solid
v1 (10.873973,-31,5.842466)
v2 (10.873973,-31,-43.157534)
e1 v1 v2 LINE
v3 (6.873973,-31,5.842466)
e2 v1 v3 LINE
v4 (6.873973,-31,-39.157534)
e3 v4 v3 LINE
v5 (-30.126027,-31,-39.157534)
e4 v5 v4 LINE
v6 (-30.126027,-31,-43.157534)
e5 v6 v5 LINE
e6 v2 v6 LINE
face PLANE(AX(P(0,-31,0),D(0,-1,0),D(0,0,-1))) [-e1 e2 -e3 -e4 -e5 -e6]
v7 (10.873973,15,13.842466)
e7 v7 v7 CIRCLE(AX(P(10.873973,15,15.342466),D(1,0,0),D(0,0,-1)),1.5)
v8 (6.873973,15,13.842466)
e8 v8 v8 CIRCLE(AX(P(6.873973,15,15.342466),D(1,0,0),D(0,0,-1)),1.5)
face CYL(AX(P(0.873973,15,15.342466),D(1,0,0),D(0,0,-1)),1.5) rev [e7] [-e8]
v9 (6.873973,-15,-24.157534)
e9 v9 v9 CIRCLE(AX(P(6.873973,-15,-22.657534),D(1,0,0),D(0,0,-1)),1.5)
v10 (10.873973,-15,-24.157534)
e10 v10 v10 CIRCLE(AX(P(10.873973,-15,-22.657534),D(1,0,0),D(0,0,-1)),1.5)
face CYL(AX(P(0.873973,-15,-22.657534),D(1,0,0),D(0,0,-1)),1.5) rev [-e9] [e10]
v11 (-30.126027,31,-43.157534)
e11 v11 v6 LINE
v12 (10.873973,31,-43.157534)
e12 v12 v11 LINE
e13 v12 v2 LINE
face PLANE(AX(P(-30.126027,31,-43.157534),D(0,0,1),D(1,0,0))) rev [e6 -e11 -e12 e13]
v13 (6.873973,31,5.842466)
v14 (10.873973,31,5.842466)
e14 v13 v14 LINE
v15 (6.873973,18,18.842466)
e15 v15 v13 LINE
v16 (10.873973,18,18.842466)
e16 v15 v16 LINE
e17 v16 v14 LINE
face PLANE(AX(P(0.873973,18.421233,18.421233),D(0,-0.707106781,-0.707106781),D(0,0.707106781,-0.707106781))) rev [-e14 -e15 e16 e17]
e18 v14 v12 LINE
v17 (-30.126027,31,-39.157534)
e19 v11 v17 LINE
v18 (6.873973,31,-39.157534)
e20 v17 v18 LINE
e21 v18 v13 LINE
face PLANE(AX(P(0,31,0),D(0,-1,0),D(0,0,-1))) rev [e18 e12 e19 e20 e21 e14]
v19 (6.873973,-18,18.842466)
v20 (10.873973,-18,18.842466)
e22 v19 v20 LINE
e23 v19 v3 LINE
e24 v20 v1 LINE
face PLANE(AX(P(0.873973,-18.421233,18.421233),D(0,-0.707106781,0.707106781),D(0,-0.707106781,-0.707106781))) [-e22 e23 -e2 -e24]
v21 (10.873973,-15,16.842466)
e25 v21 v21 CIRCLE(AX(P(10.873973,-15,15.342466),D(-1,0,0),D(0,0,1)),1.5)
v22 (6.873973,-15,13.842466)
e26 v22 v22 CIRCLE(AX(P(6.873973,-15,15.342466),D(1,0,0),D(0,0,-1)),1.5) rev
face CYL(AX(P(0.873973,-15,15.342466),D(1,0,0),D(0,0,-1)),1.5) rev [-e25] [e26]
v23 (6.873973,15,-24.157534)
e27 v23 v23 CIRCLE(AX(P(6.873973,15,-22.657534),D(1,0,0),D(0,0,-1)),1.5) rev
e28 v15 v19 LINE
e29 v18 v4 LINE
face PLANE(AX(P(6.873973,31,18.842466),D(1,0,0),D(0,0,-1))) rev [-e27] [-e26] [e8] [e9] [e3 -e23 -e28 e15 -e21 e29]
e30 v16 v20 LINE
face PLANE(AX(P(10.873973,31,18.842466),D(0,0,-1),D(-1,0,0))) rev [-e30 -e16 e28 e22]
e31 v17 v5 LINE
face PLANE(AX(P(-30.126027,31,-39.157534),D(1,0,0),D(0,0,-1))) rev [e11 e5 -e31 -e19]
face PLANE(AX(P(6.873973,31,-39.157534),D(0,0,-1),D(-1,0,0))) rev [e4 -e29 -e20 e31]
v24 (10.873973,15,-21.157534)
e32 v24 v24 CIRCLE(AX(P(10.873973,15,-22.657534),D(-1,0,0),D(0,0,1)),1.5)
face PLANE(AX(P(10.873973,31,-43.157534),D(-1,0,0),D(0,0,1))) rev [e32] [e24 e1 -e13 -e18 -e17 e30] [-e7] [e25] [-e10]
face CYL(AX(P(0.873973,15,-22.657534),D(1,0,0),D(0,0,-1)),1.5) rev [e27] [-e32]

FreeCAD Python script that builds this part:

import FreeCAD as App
import Part
import Sketcher
Q = App.Units.Quantity

doc = App.newDocument("Part")
body = doc.addObject("PartDesign::Body", "Body")

sketch1 = doc.addObject("Sketcher::SketchObject", "Sketch")
body.addObject(sketch1)
sketch1.AttachmentSupport = (doc.XZ_Plane, [""])
sketch1.MapMode = "FlatFace"
sketch1.addGeometry([
    Part.LineSegment(App.Vector(10.873973, -43.157534, 0), App.Vector(-30.126027, -43.157534, 0)),
    Part.LineSegment(App.Vector(-30.126027, -43.157534, 0), App.Vector(-30.126027, -39.157534, 0)),
    Part.LineSegment(App.Vector(-30.126027, -39.157534, 0), App.Vector(6.873973, -39.157534, 0)),
    Part.LineSegment(App.Vector(6.873973, -39.157534, 0), App.Vector(6.873973, 18.842466, 0)),
    Part.LineSegment(App.Vector(6.873973, 18.842466, 0), App.Vector(10.873973, 18.842466, 0)),
    Part.LineSegment(App.Vector(10.873973, 18.842466, 0), App.Vector(10.873973, -43.157534, 0)),
], False)
sketch1.addConstraint([
    Sketcher.Constraint("Coincident", 0, 2, 1, 1),
    Sketcher.Constraint("Coincident", 1, 2, 2, 1),
    Sketcher.Constraint("Coincident", 2, 2, 3, 1),
    Sketcher.Constraint("Coincident", 3, 2, 4, 1),
    Sketcher.Constraint("Coincident", 4, 2, 5, 1),
    Sketcher.Constraint("Coincident", 5, 2, 0, 1),
    Sketcher.Constraint("Horizontal", 0),
    Sketcher.Constraint("Vertical", 1),
    Sketcher.Constraint("Horizontal", 2),
    Sketcher.Constraint("Vertical", 3),
    Sketcher.Constraint("Horizontal", 4),
    Sketcher.Constraint("Vertical", 5),
    Sketcher.Constraint("Equal", 4, 1),
    Sketcher.Constraint("DistanceX", 0, 2, 0, 1, Q("41 mm")),
    Sketcher.Constraint("DistanceX", 2, 1, 2, 2, Q("37 mm")),
    Sketcher.Constraint("DistanceY", 3, 1, 3, 2, Q("58 mm")),
    Sketcher.Constraint("DistanceX", 0, 2, -1, 1, Q("30.126027 mm")),
    Sketcher.Constraint("DistanceY", 0, 2, -1, 1, Q("43.157534 mm")),
])
pad1 = doc.addObject("PartDesign::Pad", "Pad")
body.addObject(pad1)
pad1.Profile = sketch1
pad1.Length = 62
pad1.Midplane = True

sketch2 = doc.addObject("Sketcher::SketchObject", "Sketch001")
body.addObject(sketch2)
sketch2.AttachmentSupport = (doc.YZ_Plane, [""])
sketch2.MapMode = "FlatFace"
sketch2.AttachmentOffset = App.Placement(App.Vector(0, 0, 10.873973), App.Rotation())
sketch2.addGeometry([
    Part.LineSegment(App.Vector(31, 5.842466, 0), App.Vector(31, 18.842466, 0)),
    Part.LineSegment(App.Vector(31, 18.842466, 0), App.Vector(18, 18.842466, 0)),
    Part.LineSegment(App.Vector(18, 18.842466, 0), App.Vector(31, 5.842466, 0)),
    Part.Circle(App.Vector(-15, -22.657534, 0), App.Vector(0, 0, 1), 1.5),
    Part.LineSegment(App.Vector(-31, 5.842466, 0), App.Vector(-18, 18.842466, 0)),
    Part.LineSegment(App.Vector(-18, 18.842466, 0), App.Vector(-31, 18.842466, 0)),
    Part.LineSegment(App.Vector(-31, 18.842466, 0), App.Vector(-31, 5.842466, 0)),
    Part.Circle(App.Vector(15, -22.657534, 0), App.Vector(0, 0, 1), 1.5),
    Part.Circle(App.Vector(15, 15.342466, 0), App.Vector(0, 0, 1), 1.5),
    Part.Circle(App.Vector(-15, 15.342466, 0), App.Vector(0, 0, 1), 1.5),
], False)
sketch2.addConstraint([
    Sketcher.Constraint("Coincident", 0, 2, 1, 1),
    Sketcher.Constraint("Coincident", 1, 2, 2, 1),
    Sketcher.Constraint("Coincident", 2, 2, 0, 1),
    Sketcher.Constraint("Coincident", 4, 2, 5, 1),
    Sketcher.Constraint("Coincident", 5, 2, 6, 1),
    Sketcher.Constraint("Coincident", 6, 2, 4, 1),
    Sketcher.Constraint("Vertical", 0),
    Sketcher.Constraint("Horizontal", 1),
    Sketcher.Constraint("Horizontal", 5),
    Sketcher.Constraint("Vertical", 6),
    Sketcher.Constraint("Equal", 3, 7),
    Sketcher.Constraint("Equal", 7, 8),
    Sketcher.Constraint("Equal", 8, 9),
    Sketcher.Constraint("Symmetric", 3, 3, 7, 3, -2),
    Sketcher.Constraint("Symmetric", 8, 3, 9, 3, -2),
    Sketcher.Constraint("Symmetric", 1, 2, 4, 2, -2),
    Sketcher.Constraint("Symmetric", 2, 2, 6, 2, -2),
    Sketcher.Constraint("Perpendicular", 2, 4),
    Sketcher.Constraint("Vertical", 7, 3, 8, 3),
    Sketcher.Constraint("Diameter", 3, Q("3 mm")),
    Sketcher.Constraint("DistanceX", 1, 2, 1, 1, Q("13 mm")),
    Sketcher.Constraint("DistanceX", 3, 3, -1, 1, Q("15 mm")),
    Sketcher.Constraint("DistanceX", -1, 1, 0, 2, Q("31 mm")),
    Sketcher.Constraint("DistanceY", 7, 3, 8, 3, Q("38 mm")),
    Sketcher.Constraint("DistanceY", 8, 3, 0, 2, Q("3.5 mm")),
    Sketcher.Constraint("DistanceY", 3, 3, -1, 1, Q("22.657534 mm")),
])
pocket1 = doc.addObject("PartDesign::Pocket", "Pocket")
body.addObject(pocket1)
pocket1.Profile = sketch2
pocket1.Length = 10

doc.recompute()
